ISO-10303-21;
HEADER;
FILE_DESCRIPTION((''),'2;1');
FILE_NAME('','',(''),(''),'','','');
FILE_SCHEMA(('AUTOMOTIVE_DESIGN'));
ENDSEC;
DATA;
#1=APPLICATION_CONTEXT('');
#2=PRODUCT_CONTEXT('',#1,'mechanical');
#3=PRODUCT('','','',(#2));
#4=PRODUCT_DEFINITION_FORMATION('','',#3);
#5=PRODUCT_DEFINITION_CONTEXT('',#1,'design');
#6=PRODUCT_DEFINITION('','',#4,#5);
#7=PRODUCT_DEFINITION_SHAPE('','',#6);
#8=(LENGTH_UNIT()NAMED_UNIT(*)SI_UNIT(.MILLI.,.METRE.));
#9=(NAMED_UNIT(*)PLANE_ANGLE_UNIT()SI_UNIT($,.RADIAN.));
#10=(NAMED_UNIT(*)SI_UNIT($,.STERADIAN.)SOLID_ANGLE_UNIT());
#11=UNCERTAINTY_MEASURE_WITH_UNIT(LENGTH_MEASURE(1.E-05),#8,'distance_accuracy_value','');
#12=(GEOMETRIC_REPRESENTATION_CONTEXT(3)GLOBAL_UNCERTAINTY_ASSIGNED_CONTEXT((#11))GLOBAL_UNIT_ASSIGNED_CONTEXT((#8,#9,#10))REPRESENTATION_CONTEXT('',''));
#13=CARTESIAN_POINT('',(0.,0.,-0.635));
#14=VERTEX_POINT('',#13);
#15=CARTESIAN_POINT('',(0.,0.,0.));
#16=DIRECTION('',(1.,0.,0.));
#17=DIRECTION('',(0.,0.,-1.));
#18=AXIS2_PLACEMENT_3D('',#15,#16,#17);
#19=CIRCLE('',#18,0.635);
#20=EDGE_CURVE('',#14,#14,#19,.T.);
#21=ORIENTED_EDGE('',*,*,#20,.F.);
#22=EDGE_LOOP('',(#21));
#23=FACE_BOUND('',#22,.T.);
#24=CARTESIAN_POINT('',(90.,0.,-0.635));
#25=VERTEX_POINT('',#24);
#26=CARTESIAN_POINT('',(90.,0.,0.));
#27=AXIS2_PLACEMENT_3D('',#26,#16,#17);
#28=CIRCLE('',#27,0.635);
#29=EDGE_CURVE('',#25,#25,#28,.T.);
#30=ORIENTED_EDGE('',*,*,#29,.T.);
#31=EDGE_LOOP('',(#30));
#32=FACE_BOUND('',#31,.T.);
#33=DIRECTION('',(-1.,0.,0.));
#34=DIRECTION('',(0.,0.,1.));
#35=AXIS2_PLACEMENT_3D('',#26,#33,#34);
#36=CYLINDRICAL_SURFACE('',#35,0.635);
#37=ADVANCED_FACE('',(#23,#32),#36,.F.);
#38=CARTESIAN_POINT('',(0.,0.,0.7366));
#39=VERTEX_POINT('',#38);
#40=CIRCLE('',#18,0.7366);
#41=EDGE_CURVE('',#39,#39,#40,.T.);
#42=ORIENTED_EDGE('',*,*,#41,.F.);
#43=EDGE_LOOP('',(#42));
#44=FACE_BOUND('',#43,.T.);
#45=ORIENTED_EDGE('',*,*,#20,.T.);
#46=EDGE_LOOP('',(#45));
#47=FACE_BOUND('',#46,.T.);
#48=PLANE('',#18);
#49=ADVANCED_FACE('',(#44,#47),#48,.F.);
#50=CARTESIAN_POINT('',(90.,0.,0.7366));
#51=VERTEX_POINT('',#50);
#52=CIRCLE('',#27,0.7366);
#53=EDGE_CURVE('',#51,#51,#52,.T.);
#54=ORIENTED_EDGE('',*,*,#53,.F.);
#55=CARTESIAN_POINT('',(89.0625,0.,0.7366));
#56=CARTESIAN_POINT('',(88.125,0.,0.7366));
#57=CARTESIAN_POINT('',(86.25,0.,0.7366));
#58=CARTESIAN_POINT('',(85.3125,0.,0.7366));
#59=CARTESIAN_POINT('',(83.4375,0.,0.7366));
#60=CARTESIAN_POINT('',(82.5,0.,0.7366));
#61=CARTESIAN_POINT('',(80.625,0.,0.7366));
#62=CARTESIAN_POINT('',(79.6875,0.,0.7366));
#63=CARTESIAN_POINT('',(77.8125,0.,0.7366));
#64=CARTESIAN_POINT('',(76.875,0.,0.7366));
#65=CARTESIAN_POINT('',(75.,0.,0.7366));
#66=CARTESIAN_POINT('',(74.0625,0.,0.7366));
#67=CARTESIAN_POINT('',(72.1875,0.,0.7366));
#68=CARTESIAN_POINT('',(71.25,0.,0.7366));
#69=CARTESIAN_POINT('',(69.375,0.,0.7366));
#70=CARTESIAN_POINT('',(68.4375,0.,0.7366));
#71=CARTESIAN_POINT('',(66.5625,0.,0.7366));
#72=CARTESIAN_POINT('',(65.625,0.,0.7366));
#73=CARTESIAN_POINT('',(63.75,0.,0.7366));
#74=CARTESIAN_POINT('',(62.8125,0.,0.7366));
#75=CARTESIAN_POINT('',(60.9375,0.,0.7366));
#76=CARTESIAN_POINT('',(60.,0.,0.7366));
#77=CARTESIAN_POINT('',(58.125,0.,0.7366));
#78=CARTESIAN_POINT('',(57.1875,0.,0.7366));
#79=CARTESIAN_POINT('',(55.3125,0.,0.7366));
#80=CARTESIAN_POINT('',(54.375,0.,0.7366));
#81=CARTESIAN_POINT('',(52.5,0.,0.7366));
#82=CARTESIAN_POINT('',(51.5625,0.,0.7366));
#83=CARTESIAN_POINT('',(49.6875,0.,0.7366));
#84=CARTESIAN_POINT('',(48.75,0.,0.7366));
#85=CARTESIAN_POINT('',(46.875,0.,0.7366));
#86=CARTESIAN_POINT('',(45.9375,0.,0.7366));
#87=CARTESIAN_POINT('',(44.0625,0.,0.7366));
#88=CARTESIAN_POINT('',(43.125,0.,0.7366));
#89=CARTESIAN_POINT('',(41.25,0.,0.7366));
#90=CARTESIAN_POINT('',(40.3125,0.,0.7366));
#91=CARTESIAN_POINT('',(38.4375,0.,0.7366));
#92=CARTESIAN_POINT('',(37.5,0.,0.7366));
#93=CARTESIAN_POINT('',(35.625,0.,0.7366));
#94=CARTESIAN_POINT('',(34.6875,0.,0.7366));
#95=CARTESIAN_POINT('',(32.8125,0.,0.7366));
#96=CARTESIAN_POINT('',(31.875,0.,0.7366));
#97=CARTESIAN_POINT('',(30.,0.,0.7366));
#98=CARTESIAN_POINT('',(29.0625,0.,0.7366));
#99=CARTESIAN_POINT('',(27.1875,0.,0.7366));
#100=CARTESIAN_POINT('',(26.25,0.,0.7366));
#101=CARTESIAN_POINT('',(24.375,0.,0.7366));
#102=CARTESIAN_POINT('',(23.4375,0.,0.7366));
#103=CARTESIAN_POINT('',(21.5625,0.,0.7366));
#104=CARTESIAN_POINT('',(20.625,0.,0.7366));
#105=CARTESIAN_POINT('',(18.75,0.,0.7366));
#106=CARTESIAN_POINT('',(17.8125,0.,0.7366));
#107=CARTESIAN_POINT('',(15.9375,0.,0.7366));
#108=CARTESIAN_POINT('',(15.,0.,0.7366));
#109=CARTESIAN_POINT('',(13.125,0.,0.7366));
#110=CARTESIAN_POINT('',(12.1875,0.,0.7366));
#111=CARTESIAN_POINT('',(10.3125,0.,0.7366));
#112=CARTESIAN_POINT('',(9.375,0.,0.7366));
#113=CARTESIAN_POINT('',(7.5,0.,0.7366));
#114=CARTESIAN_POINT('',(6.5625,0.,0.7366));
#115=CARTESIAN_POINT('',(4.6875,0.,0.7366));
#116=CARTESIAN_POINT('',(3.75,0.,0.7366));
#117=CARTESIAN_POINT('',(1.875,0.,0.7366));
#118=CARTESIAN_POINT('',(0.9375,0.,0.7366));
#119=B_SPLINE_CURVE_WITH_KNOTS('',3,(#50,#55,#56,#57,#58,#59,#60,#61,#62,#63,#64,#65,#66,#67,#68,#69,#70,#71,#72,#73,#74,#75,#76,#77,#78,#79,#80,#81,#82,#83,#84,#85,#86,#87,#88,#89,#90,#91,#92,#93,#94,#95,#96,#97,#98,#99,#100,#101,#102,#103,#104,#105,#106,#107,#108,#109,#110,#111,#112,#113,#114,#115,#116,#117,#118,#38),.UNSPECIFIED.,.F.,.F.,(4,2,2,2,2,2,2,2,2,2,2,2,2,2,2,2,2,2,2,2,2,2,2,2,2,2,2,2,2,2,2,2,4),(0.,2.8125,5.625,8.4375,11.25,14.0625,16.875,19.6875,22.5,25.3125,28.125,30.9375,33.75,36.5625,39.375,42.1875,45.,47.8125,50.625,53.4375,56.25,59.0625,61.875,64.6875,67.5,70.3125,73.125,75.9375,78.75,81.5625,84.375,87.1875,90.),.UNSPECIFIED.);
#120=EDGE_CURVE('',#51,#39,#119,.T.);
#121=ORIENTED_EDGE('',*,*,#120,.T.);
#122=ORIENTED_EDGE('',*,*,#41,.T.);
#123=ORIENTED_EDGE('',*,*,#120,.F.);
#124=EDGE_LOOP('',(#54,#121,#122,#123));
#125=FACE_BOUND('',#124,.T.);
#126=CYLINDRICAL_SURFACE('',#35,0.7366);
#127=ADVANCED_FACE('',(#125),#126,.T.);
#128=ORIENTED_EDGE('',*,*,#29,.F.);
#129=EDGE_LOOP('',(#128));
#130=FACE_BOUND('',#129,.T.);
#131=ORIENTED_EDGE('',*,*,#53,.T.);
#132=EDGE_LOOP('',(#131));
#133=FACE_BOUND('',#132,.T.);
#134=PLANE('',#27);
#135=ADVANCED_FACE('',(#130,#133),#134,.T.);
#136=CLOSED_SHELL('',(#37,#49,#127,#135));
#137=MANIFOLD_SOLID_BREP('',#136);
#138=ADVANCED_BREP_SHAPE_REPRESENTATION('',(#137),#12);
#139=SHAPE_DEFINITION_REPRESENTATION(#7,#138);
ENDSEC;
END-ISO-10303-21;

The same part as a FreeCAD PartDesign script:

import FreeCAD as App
import Part
import Sketcher

V = App.Vector
Q = App.Units.Quantity

doc = App.newDocument("Part")
body = doc.addObject("PartDesign::Body", "Body")

# Sketch on YZ plane
sketch1 = doc.addObject("Sketcher::SketchObject", "Sketch")
body.addObject(sketch1)
sketch1.AttachmentSupport = (doc.YZ_Plane, [""])
sketch1.MapMode = "FlatFace"
sketch1.addGeometry([
    Part.Circle(V(0, 0, 0), V(0, 0, 1), 0.7),
    Part.Circle(V(0, 0, 0), V(0, 0, 1), 0.6),
], False)
sketch1.addConstraint([
    Sketcher.Constraint("Coincident", 0, 3, -1, 1),
    Sketcher.Constraint("Coincident", 1, 3, -1, 1),
    Sketcher.Constraint("Diameter", 1, Q("0.05 in")),
    Sketcher.Constraint("Diameter", 0, Q("0.058 in")),
])
pad1 = doc.addObject("PartDesign::Pad", "Pad")
body.addObject(pad1)
pad1.Profile = sketch1
pad1.Length = 90

doc.recompute()
